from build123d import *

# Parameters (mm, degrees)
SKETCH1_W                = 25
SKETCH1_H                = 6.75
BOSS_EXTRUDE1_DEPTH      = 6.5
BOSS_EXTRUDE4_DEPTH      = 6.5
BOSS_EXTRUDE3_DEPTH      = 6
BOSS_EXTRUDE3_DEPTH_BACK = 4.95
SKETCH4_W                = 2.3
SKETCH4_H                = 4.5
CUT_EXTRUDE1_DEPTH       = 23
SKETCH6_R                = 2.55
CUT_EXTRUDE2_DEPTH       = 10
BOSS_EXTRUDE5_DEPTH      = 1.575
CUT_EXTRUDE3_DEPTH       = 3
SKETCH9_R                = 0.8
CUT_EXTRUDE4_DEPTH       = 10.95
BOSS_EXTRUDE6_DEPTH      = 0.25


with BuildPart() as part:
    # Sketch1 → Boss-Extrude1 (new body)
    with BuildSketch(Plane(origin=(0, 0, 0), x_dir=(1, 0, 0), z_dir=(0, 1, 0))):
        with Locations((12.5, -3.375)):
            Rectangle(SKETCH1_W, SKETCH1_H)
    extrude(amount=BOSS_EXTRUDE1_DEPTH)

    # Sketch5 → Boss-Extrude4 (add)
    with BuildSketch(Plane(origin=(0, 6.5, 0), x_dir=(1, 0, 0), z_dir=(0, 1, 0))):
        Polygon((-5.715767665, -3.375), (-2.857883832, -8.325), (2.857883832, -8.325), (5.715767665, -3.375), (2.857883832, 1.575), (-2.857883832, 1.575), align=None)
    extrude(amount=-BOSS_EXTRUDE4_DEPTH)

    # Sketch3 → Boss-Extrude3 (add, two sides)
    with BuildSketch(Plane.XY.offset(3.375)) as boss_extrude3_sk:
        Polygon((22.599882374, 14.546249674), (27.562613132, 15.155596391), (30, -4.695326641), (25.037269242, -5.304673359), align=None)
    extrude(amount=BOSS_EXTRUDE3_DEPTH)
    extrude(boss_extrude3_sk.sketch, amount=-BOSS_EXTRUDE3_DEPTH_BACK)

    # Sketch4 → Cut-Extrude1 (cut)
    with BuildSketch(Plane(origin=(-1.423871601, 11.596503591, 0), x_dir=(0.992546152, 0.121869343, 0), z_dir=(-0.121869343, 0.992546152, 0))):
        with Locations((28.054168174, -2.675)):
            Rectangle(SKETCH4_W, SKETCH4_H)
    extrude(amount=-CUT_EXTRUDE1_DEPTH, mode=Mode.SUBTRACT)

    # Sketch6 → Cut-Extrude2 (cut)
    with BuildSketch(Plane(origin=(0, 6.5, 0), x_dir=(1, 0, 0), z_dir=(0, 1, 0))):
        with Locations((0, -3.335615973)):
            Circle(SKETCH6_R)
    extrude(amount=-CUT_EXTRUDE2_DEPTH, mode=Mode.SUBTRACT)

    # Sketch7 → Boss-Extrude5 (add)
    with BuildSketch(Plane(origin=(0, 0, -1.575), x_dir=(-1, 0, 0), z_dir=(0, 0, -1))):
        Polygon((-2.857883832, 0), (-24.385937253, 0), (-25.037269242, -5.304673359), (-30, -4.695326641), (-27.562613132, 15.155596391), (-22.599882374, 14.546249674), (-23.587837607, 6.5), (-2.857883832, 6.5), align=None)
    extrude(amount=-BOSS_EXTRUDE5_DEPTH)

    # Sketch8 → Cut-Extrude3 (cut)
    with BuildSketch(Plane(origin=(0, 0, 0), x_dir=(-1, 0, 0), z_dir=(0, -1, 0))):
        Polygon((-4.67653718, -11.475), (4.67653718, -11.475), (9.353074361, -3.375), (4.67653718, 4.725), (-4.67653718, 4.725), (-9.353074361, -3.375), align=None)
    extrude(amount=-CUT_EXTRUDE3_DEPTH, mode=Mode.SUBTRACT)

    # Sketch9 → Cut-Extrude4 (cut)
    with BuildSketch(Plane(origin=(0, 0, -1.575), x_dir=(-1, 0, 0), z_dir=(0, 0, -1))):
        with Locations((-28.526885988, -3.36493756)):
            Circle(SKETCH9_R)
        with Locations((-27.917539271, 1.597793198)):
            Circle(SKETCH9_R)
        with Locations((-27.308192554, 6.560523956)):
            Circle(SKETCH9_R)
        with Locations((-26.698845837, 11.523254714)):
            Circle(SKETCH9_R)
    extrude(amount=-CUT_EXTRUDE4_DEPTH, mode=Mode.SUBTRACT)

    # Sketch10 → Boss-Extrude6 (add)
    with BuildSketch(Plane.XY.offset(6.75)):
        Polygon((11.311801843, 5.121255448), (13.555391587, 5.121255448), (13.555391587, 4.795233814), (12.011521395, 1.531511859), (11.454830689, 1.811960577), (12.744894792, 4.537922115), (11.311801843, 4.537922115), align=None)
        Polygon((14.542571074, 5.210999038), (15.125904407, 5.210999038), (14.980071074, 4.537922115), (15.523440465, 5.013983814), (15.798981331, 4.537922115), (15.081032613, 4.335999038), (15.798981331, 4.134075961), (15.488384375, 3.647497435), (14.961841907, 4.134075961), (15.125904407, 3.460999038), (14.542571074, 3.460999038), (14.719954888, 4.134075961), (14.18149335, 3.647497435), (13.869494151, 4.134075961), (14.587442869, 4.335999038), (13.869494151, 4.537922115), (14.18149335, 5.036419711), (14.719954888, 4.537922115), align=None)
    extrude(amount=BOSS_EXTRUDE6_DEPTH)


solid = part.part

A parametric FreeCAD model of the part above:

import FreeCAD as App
import Part
import Sketcher
from FreeCAD import Vector
Q = App.Units.Quantity

doc = App.newDocument("Part")
body = doc.addObject("PartDesign::Body", "Body")

sketch1 = body.newObject("Sketcher::SketchObject", "Sketch")
sketch1.AttachmentSupport = (doc.getObject("XZ_Plane"), [""])
sketch1.MapMode = "FlatFace"
sketch1.addGeometry([
    Part.LineSegment(Vector(0, 0, 0), Vector(0, 6.75, 0)),
    Part.LineSegment(Vector(0, 6.75, 0), Vector(25, 6.75, 0)),
    Part.LineSegment(Vector(25, 6.75, 0), Vector(25, 0, 0)),
    Part.LineSegment(Vector(25, 0, 0), Vector(0, 0, 0)),
], False)
sketch1.addConstraint([
    Sketcher.Constraint("Coincident", 0, 2, 1, 1),
    Sketcher.Constraint("Coincident", 1, 2, 2, 1),
    Sketcher.Constraint("Coincident", 2, 2, 3, 1),
    Sketcher.Constraint("Coincident", 3, 2, 0, 1),
    Sketcher.Constraint("Vertical", 0),
    Sketcher.Constraint("Horizontal", 1),
    Sketcher.Constraint("Vertical", 2),
    Sketcher.Constraint("Horizontal", 3),
    Sketcher.Constraint("Coincident", 3, 2, -1, 1),
    Sketcher.Constraint("DistanceX", 1, 1, 1, 2, 25.0),
    Sketcher.Constraint("DistanceY", 0, 1, 0, 2, 6.75),
])
pad1 = body.newObject("PartDesign::Pad", "Pad")
pad1.Profile = sketch1
pad1.Length = 6.5
pad1.Reversed = True

sketch2 = body.newObject("Sketcher::SketchObject", "Sketch001")
sketch2.AttachmentSupport = (doc.getObject("XZ_Plane"), [""])
sketch2.MapMode = "FlatFace"
sketch2.AttachmentOffset = App.Placement(Vector(0, 0, -6.5), App.Rotation())
sketch2.addGeometry([
    Part.LineSegment(Vector(-5.715768, 3.375, 0), Vector(-2.857884, 8.325, 0)),
    Part.LineSegment(Vector(-2.857884, 8.325, 0), Vector(2.857884, 8.325, 0)),
    Part.LineSegment(Vector(2.857884, 8.325, 0), Vector(5.715768, 3.375, 0)),
    Part.LineSegment(Vector(5.715768, 3.375, 0), Vector(2.857884, -1.575, 0)),
    Part.LineSegment(Vector(2.857884, -1.575, 0), Vector(-2.857884, -1.575, 0)),
    Part.LineSegment(Vector(-2.857884, -1.575, 0), Vector(-5.715768, 3.375, 0)),
], False)
sketch2.addConstraint([
    Sketcher.Constraint("Coincident", 0, 2, 1, 1),
    Sketcher.Constraint("Coincident", 1, 2, 2, 1),
    Sketcher.Constraint("Coincident", 2, 2, 3, 1),
    Sketcher.Constraint("Coincident", 3, 2, 4, 1),
    Sketcher.Constraint("Coincident", 4, 2, 5, 1),
    Sketcher.Constraint("Coincident", 5, 2, 0, 1),
    Sketcher.Constraint("Horizontal", 1),
    Sketcher.Constraint("Horizontal", 4),
    Sketcher.Constraint("Symmetric", 2, 2, 5, 2, -2),
    Sketcher.Constraint("Parallel", 0, 3),
    Sketcher.Constraint("Parallel", 2, 5),
    Sketcher.Constraint("Vertical", 1, 2, 3, 2),
    Sketcher.Constraint("Vertical", 0, 2, 4, 2),
    Sketcher.Constraint("Angle", 0, Q("60 deg")),
    Sketcher.Constraint("DistanceY", 3, 2, 1, 2, 9.9),
    Sketcher.Constraint("DistanceY", -1, 1, 0, 2, 8.325),
    Sketcher.Constraint("DistanceX", 1, 1, 1, 2, 5.715768),
])
pad2 = body.newObject("PartDesign::Pad", "Pad001")
pad2.Profile = sketch2
pad2.Length = 6.5

sketch3 = body.newObject("Sketcher::SketchObject", "Sketch002")
sketch3.AttachmentSupport = (doc.getObject("XY_Plane"), [""])
sketch3.MapMode = "FlatFace"
sketch3.AttachmentOffset = App.Placement(Vector(0, 0, 3.375), App.Rotation())
sketch3.addGeometry([
    Part.LineSegment(Vector(27.562613, 15.155596, 0), Vector(22.599882, 14.54625, 0)),
    Part.LineSegment(Vector(22.599882, 14.54625, 0), Vector(25.037269, -5.304673, 0)),
    Part.LineSegment(Vector(25.037269, -5.304673, 0), Vector(30, -4.695327, 0)),
    Part.LineSegment(Vector(30, -4.695327, 0), Vector(27.562613, 15.155596, 0)),
], False)
sketch3.addConstraint([
    Sketcher.Constraint("Coincident", 0, 2, 1, 1),
    Sketcher.Constraint("Coincident", 1, 2, 2, 1),
    Sketcher.Constraint("Coincident", 2, 2, 3, 1),
    Sketcher.Constraint("Coincident", 3, 2, 0, 1),
    Sketcher.Constraint("Perpendicular", 0, 1),
    Sketcher.Constraint("Perpendicular", 1, 2),
    Sketcher.Constraint("Perpendicular", 2, 3),
    Sketcher.Constraint("Angle", 0, Q("-173 deg")),
    Sketcher.Constraint("Distance", 0, 5.0),
    Sketcher.Constraint("Distance", 1, 20.0),
    Sketcher.Constraint("DistanceX", -1, 1, 2, 2, 30.0),
    Sketcher.Constraint("DistanceY", -1, 1, 0, 2, 14.54625),
])
pad3 = body.newObject("PartDesign::Pad", "Pad002")
pad3.Profile = sketch3
pad3.Type = "TwoLengths"
pad3.Length = 6
pad3.Length2 = 4.95

sketch4 = body.newObject("Sketcher::SketchObject", "Sketch003")
sketch4.Placement = App.Placement(Vector(-1.423872, 11.596504, 0), App.Rotation(Vector(0.992546152, 0.121869343, 0), Vector(0, 0, -1.000000001), Vector(-0.121869343, 0.992546152, 0), "ZXY"))
sketch4.addGeometry([
    Part.LineSegment(Vector(26.904168, -0.425, 0), Vector(26.904168, -4.925, 0)),
    Part.LineSegment(Vector(26.904168, -4.925, 0), Vector(29.204168, -4.925, 0)),
    Part.LineSegment(Vector(29.204168, -4.925, 0), Vector(29.204168, -0.425, 0)),
    Part.LineSegment(Vector(29.204168, -0.425, 0), Vector(26.904168, -0.425, 0)),
], False)
sketch4.addConstraint([
    Sketcher.Constraint("Coincident", 0, 2, 1, 1),
    Sketcher.Constraint("Coincident", 1, 2, 2, 1),
    Sketcher.Constraint("Coincident", 2, 2, 3, 1),
    Sketcher.Constraint("Coincident", 3, 2, 0, 1),
    Sketcher.Constraint("Vertical", 0),
    Sketcher.Constraint("Horizontal", 1),
    Sketcher.Constraint("Vertical", 2),
    Sketcher.Constraint("Horizontal", 3),
    Sketcher.Constraint("DistanceX", 1, 1, 1, 2, 2.3),
    Sketcher.Constraint("DistanceY", 0, 2, 0, 1, 4.5),
    Sketcher.Constraint("DistanceY", 0, 2, -1, 1, 4.925),
    Sketcher.Constraint("DistanceX", -1, 1, 0, 2, 26.904168),
])
pocket1 = body.newObject("PartDesign::Pocket", "Pocket")
pocket1.Profile = sketch4
pocket1.Length = 23

sketch5 = body.newObject("Sketcher::SketchObject", "Sketch004")
sketch5.AttachmentSupport = (doc.getObject("XZ_Plane"), [""])
sketch5.MapMode = "FlatFace"
sketch5.AttachmentOffset = App.Placement(Vector(0, 0, -6.5), App.Rotation())
sketch5.addGeometry(Part.Circle(Vector(0, 3.335616, 0), Vector(0, 0, 1), 2.55), False)
sketch5.addConstraint([
    Sketcher.Constraint("PointOnObject", 0, 3, -2),
    Sketcher.Constraint("Diameter", 0, 5.1),
    Sketcher.Constraint("DistanceY", -1, 1, 0, 3, 3.335616),
])
pocket2 = body.newObject("PartDesign::Pocket", "Pocket001")
pocket2.Profile = sketch5
pocket2.Length = 10
pocket2.Reversed = True

sketch6 = body.newObject("Sketcher::SketchObject", "Sketch005")
sketch6.AttachmentSupport = (doc.getObject("XY_Plane"), [""])
sketch6.MapMode = "FlatFace"
sketch6.AttachmentOffset = App.Placement(Vector(0, 0, -1.575), App.Rotation())
sketch6.addGeometry([
    Part.LineSegment(Vector(24.385937, 0, 0), Vector(2.857884, 0, 0)),
    Part.LineSegment(Vector(2.857884, 0, 0), Vector(2.857884, 6.5, 0)),
    Part.LineSegment(Vector(2.857884, 6.5, 0), Vector(23.587838, 6.5, 0)),
    Part.LineSegment(Vector(23.587838, 6.5, 0), Vector(22.599882, 14.54625, 0)),
    Part.LineSegment(Vector(22.599882, 14.54625, 0), Vector(27.562613, 15.155596, 0)),
    Part.LineSegment(Vector(27.562613, 15.155596, 0), Vector(30, -4.695327, 0)),
    Part.LineSegment(Vector(30, -4.695327, 0), Vector(25.037269, -5.304673, 0)),
    Part.LineSegment(Vector(25.037269, -5.304673, 0), Vector(24.385937, 0, 0)),
], False)
sketch6.addConstraint([
    Sketcher.Constraint("Coincident", 0, 2, 1, 1),
    Sketcher.Constraint("Coincident", 1, 2, 2, 1),
    Sketcher.Constraint("Coincident", 2, 2, 3, 1),
    Sketcher.Constraint("Coincident", 3, 2, 4, 1),
    Sketcher.Constraint("Coincident", 4, 2, 5, 1),
    Sketcher.Constraint("Coincident", 5, 2, 6, 1),
    Sketcher.Constraint("Coincident", 6, 2, 7, 1),
    Sketcher.Constraint("Coincident", 7, 2, 0, 1),
    Sketcher.Constraint("Horizontal", 0),
    Sketcher.Constraint("Vertical", 1),
    Sketcher.Constraint("Horizontal", 2),
    Sketcher.Constraint("PointOnObject", 0, 2, -1),
    Sketcher.Constraint("Perpendicular", 3, 4),
    Sketcher.Constraint("Perpendicular", 4, 5),
    Sketcher.Constraint("Perpendicular", 5, 6),
    Sketcher.Constraint("Perpendicular", 6, 7),
    Sketcher.Constraint("Equal", 4, 6),
    Sketcher.Constraint("Angle", 3, Q("97 deg")),
    Sketcher.Constraint("Distance", 4, 5.0),
    Sketcher.Constraint("Distance", 5, 20.0),
    Sketcher.Constraint("DistanceY", 1, 1, 1, 2, 6.5),
    Sketcher.Constraint("DistanceX", -1, 1, 5, 2, 30.0),
    Sketcher.Constraint("DistanceX", 1, 2, 3, 2, 19.741999),
    Sketcher.Constraint("Distance", 7, 5.344511),
])
pad4 = body.newObject("PartDesign::Pad", "Pad003")
pad4.Profile = sketch6
pad4.Length = 1.575

sketch7 = body.newObject("Sketcher::SketchObject", "Sketch006")
sketch7.AttachmentSupport = (doc.getObject("XZ_Plane"), [""])
sketch7.MapMode = "FlatFace"
sketch7.addGeometry([
    Part.LineSegment(Vector(4.676537, 11.475, 0), Vector(-4.676537, 11.475, 0)),
    Part.LineSegment(Vector(-4.676537, 11.475, 0), Vector(-9.353074, 3.375, 0)),
    Part.LineSegment(Vector(-9.353074, 3.375, 0), Vector(-4.676537, -4.725, 0)),
    Part.LineSegment(Vector(-4.676537, -4.725, 0), Vector(4.676537, -4.725, 0)),
    Part.LineSegment(Vector(4.676537, -4.725, 0), Vector(9.353074, 3.375, 0)),
    Part.LineSegment(Vector(9.353074, 3.375, 0), Vector(4.676537, 11.475, 0)),
], False)
sketch7.addConstraint([
    Sketcher.Constraint("Coincident", 0, 2, 1, 1),
    Sketcher.Constraint("Coincident", 1, 2, 2, 1),
    Sketcher.Constraint("Coincident", 2, 2, 3, 1),
    Sketcher.Constraint("Coincident", 3, 2, 4, 1),
    Sketcher.Constraint("Coincident", 4, 2, 5, 1),
    Sketcher.Constraint("Coincident", 5, 2, 0, 1),
    Sketcher.Constraint("Horizontal", 0),
    Sketcher.Constraint("Horizontal", 3),
    Sketcher.Constraint("Symmetric", 1, 2, 4, 2, -2),
    Sketcher.Constraint("Parallel", 1, 4),
    Sketcher.Constraint("Parallel", 2, 5),
    Sketcher.Constraint("Vertical", 0, 2, 2, 2),
    Sketcher.Constraint("Vertical", 3, 2, 5, 2),
    Sketcher.Constraint("Angle", 1, Q("-120 deg")),
    Sketcher.Constraint("DistanceY", 1, 2, 0, 2, 8.1),
    Sketcher.Constraint("DistanceY", -1, 1, 0, 2, 11.475),
    Sketcher.Constraint("DistanceX", 0, 2, 0, 1, 9.353074),
])
pocket3 = body.newObject("PartDesign::Pocket", "Pocket002")
pocket3.Profile = sketch7
pocket3.Length = 3

sketch8 = body.newObject("Sketcher::SketchObject", "Sketch007")
sketch8.AttachmentSupport = (doc.getObject("XY_Plane"), [""])
sketch8.MapMode = "FlatFace"
sketch8.AttachmentOffset = App.Placement(Vector(0, 0, -1.575), App.Rotation())
sketch8.addGeometry([
    Part.Circle(Vector(28.526886, -3.364938, 0), Vector(0, 0, 1), 0.8),
    Part.Circle(Vector(27.917539, 1.597793, 0), Vector(0, 0, 1), 0.8),
    Part.Circle(Vector(27.308193, 6.560524, 0), Vector(0, 0, 1), 0.8),
    Part.Circle(Vector(26.698846, 11.523255, 0), Vector(0, 0, 1), 0.8),
], False)
sketch8.addConstraint([
    Sketcher.Constraint("Equal", 0, 1),
    Sketcher.Constraint("Equal", 1, 2),
    Sketcher.Constraint("Equal", 2, 3),
    Sketcher.Constraint("Diameter", 0, 1.6),
    Sketcher.Constraint("DistanceX", -1, 1, 1, 3, 27.917539),
    Sketcher.Constraint("DistanceY", 0, 3, 1, 3, 4.962731),
    Sketcher.Constraint("DistanceY", 1, 3, 2, 3, 4.962731),
    Sketcher.Constraint("DistanceY", 2, 3, 3, 3, 4.962731),
    Sketcher.Constraint("DistanceX", 3, 3, 0, 3, 1.82804),
    Sketcher.Constraint("DistanceX", -1, 1, 0, 3, 28.526886),
    Sketcher.Constraint("DistanceY", 0, 3, -1, 1, 3.364938),
    Sketcher.Constraint("DistanceX", -1, 1, 2, 3, 27.308193),
])
pocket4 = body.newObject("PartDesign::Pocket", "Pocket003")
pocket4.Profile = sketch8
pocket4.Length = 10.95
pocket4.Reversed = True

sketch9 = body.newObject("Sketcher::SketchObject", "Sketch008")
sketch9.AttachmentSupport = (doc.getObject("XY_Plane"), [""])
sketch9.MapMode = "FlatFace"
sketch9.AttachmentOffset = App.Placement(Vector(0, 0, 6.75), App.Rotation())
sketch9.addGeometry([
    Part.LineSegment(Vector(13.555392, 5.121255, 0), Vector(11.311802, 5.121255, 0)),
    Part.LineSegment(Vector(11.311802, 5.121255, 0), Vector(11.311802, 4.537922, 0)),
    Part.LineSegment(Vector(11.311802, 4.537922, 0), Vector(12.744895, 4.537922, 0)),
    Part.LineSegment(Vector(12.744895, 4.537922, 0), Vector(11.454831, 1.811961, 0)),
    Part.LineSegment(Vector(11.454831, 1.811961, 0), Vector(12.011521, 1.531512, 0)),
    Part.LineSegment(Vector(12.011521, 1.531512, 0), Vector(13.555392, 4.795234, 0)),
    Part.LineSegment(Vector(13.555392, 4.795234, 0), Vector(13.555392, 5.121255, 0)),
    Part.LineSegment(Vector(15.125904, 5.210999, 0), Vector(14.542571, 5.210999, 0)),
    Part.LineSegment(Vector(14.542571, 5.210999, 0), Vector(14.719955, 4.537922, 0)),
    Part.LineSegment(Vector(14.719955, 4.537922, 0), Vector(14.181493, 5.03642, 0)),
    Part.LineSegment(Vector(14.181493, 5.03642, 0), Vector(13.869494, 4.537922, 0)),
    Part.LineSegment(Vector(13.869494, 4.537922, 0), Vector(14.587443, 4.335999, 0)),
    Part.LineSegment(Vector(14.587443, 4.335999, 0), Vector(13.869494, 4.134076, 0)),
    Part.LineSegment(Vector(13.869494, 4.134076, 0), Vector(14.181493, 3.647497, 0)),
    Part.LineSegment(Vector(14.181493, 3.647497, 0), Vector(14.719955, 4.134076, 0)),
    Part.LineSegment(Vector(14.719955, 4.134076, 0), Vector(14.542571, 3.460999, 0)),
    Part.LineSegment(Vector(14.542571, 3.460999, 0), Vector(15.125904, 3.460999, 0)),
    Part.LineSegment(Vector(15.125904, 3.460999, 0), Vector(14.961842, 4.134076, 0)),
    Part.LineSegment(Vector(14.961842, 4.134076, 0), Vector(15.488384, 3.647497, 0)),
    Part.LineSegment(Vector(15.488384, 3.647497, 0), Vector(15.798981, 4.134076, 0)),
    Part.LineSegment(Vector(15.798981, 4.134076, 0), Vector(15.081033, 4.335999, 0)),
    Part.LineSegment(Vector(15.081033, 4.335999, 0), Vector(15.798981, 4.537922, 0)),
    Part.LineSegment(Vector(15.798981, 4.537922, 0), Vector(15.52344, 5.013984, 0)),
    Part.LineSegment(Vector(15.52344, 5.013984, 0), Vector(14.980071, 4.537922, 0)),
    Part.LineSegment(Vector(14.980071, 4.537922, 0), Vector(15.125904, 5.210999, 0)),
], False)
sketch9.addConstraint([
    Sketcher.Constraint("Coincident", 0, 2, 1, 1),
    Sketcher.Constraint("Coincident", 1, 2, 2, 1),
    Sketcher.Constraint("Coincident", 2, 2, 3, 1),
    Sketcher.Constraint("Coincident", 3, 2, 4, 1),
    Sketcher.Constraint("Coincident", 4, 2, 5, 1),
    Sketcher.Constraint("Coincident", 5, 2, 6, 1),
    Sketcher.Constraint("Coincident", 6, 2, 0, 1),
    Sketcher.Constraint("Coincident", 7, 2, 8, 1),
    Sketcher.Constraint("Coincident", 8, 2, 9, 1),
    Sketcher.Constraint("Coincident", 9, 2, 10, 1),
    Sketcher.Constraint("Coincident", 10, 2, 11, 1),
    Sketcher.Constraint("Coincident", 11, 2, 12, 1),
    Sketcher.Constraint("Coincident", 12, 2, 13, 1),
    Sketcher.Constraint("Coincident", 13, 2, 14, 1),
    Sketcher.Constraint("Coincident", 14, 2, 15, 1),
    Sketcher.Constraint("Coincident", 15, 2, 16, 1),
    Sketcher.Constraint("Coincident", 16, 2, 17, 1),
    Sketcher.Constraint("Coincident", 17, 2, 18, 1),
    Sketcher.Constraint("Coincident", 18, 2, 19, 1),
    Sketcher.Constraint("Coincident", 19, 2, 20, 1),
    Sketcher.Constraint("Coincident", 20, 2, 21, 1),
    Sketcher.Constraint("Coincident", 21, 2, 22, 1),
    Sketcher.Constraint("Coincident", 22, 2, 23, 1),
    Sketcher.Constraint("Coincident", 23, 2, 24, 1),
    Sketcher.Constraint("Coincident", 24, 2, 7, 1),
    Sketcher.Constraint("Horizontal", 0),
    Sketcher.Constraint("Vertical", 1),
    Sketcher.Constraint("Horizontal", 2),
    Sketcher.Constraint("Vertical", 6),
    Sketcher.Constraint("Horizontal", 7),
    Sketcher.Constraint("Horizontal", 16),
    Sketcher.Constraint("Parallel", 11, 20),
    Sketcher.Constraint("Parallel", 12, 21),
    Sketcher.Constraint("Horizontal", 2, 2, 8, 2),
    Sketcher.Constraint("Horizontal", 8, 2, 10, 2),
    Sketcher.Constraint("Horizontal", 12, 2, 14, 2),
    Sketcher.Constraint("Horizontal", 14, 2, 17, 2),
    Sketcher.Constraint("Horizontal", 13, 2, 18, 2),
    Sketcher.Constraint("Horizontal", 17, 2, 19, 2),
    Sketcher.Constraint("Horizontal", 11, 2, 20, 2),
    Sketcher.Constraint("Horizontal", 10, 2, 21, 2),
    Sketcher.Constraint("Horizontal", 21, 2, 23, 2),
    Sketcher.Constraint("Vertical", 10, 2, 12, 2),
    Sketcher.Constraint("Vertical", 9, 2, 13, 2),
    Sketcher.Constraint("Vertical", 8, 2, 14, 2),
    Sketcher.Constraint("Vertical", 7, 2, 15, 2),
    Sketcher.Constraint("Vertical", 19, 2, 21, 2),
    Sketcher.Constraint("Vertical", 16, 2, 24, 2),
    Sketcher.Constraint("Equal", 16, 1),
    Sketcher.Constraint("Equal", 8, 15),
    Sketcher.Constraint("DistanceY", -1, 1, 7, 2, 5.210999),
    Sketcher.Constraint("DistanceY", -1, 1, 11, 2, 4.335999),
    Sketcher.Constraint("DistanceX", 10, 2, 9, 2, 0.311999),
    Sketcher.Constraint("DistanceX", 0, 2, 0, 1, 2.24359),
    Sketcher.Constraint("DistanceY", 6, 1, 6, 2, 0.326022),
    Sketcher.Constraint("DistanceX", -1, 1, 0, 2, 11.311802),
    Sketcher.Constraint("DistanceX", 6, 2, 9, 2, 0.626102),
    Sketcher.Constraint("DistanceX", 2, 2, 9, 2, 1.436599),
    Sketcher.Constraint("DistanceY", 13, 2, 11, 2, 0.688502),
    Sketcher.Constraint("DistanceX", 11, 2, 17, 2, 0.374399),
    Sketcher.Constraint("Distance", 5, 3.610459),
    Sketcher.Constraint("Distance", 8, 0.696059),
    Sketcher.Constraint("Distance", 14, 0.725741),
    Sketcher.Constraint("Distance", 18, 0.716942),
    Sketcher.Constraint("Distance", 19, 0.57726),
    Sketcher.Constraint("DistanceX", 7, 2, 7, 1, 0.583333),
    Sketcher.Constraint("DistanceX", -1, 1, 3, 2, 11.454831),
    Sketcher.Constraint("DistanceY", -1, 1, 3, 2, 1.811961),
    Sketcher.Constraint("DistanceX", -1, 1, 4, 2, 12.011521),
    Sketcher.Constraint("DistanceY", -1, 1, 4, 2, 1.531512),
    Sketcher.Constraint("DistanceY", -1, 1, 9, 2, 5.03642),
    Sketcher.Constraint("DistanceX", -1, 1, 17, 2, 14.961842),
    Sketcher.Constraint("DistanceX", -1, 1, 22, 2, 15.52344),
    Sketcher.Constraint("DistanceX", -1, 1, 23, 2, 14.980071),
    Sketcher.Constraint("DistanceY", 21, 2, 22, 2, 0.476062),
])
pad5 = body.newObject("PartDesign::Pad", "Pad004")
pad5.Profile = sketch9
pad5.Length = 0.25

doc.recompute()
